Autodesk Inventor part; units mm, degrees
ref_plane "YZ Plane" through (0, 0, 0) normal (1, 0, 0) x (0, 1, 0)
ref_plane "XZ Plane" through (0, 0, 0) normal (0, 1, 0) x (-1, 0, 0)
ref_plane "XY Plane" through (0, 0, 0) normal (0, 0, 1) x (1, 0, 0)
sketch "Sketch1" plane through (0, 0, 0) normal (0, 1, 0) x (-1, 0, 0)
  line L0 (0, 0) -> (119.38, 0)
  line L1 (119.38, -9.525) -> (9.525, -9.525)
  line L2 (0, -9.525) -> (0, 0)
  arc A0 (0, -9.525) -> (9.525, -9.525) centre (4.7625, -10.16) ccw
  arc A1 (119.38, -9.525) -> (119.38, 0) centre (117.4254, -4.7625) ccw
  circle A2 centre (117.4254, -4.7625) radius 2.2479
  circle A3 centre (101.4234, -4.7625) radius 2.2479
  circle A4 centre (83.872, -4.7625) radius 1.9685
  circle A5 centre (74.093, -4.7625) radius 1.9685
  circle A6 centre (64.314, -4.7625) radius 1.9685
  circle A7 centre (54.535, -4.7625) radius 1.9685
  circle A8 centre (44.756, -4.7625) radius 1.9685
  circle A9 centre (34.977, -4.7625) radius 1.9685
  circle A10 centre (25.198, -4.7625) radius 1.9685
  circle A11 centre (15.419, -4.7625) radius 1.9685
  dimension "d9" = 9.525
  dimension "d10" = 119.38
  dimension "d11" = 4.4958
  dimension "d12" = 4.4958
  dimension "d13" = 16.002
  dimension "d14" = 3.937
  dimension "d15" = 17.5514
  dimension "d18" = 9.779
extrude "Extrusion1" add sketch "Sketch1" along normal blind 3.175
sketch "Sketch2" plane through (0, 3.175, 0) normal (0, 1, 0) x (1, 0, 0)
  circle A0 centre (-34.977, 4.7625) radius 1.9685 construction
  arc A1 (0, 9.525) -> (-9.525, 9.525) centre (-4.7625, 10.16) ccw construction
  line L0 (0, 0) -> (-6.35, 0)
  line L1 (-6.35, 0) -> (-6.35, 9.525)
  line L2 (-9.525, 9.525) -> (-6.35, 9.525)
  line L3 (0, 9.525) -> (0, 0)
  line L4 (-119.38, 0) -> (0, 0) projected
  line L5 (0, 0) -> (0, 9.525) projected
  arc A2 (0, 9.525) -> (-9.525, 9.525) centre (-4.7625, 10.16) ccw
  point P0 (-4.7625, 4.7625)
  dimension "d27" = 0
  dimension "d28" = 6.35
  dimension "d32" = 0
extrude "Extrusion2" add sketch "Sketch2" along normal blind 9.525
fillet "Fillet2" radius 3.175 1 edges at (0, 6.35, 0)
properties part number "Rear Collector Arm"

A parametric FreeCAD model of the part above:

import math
import FreeCAD as App
import Part
import Sketcher
from FreeCAD import Vector
Q = App.Units.Quantity


def edges_at(feature, points):
    """Names of the edges that pass closest to the given points."""
    edges = feature.Shape.Edges
    near = lambda p: min(range(len(edges)), key=lambda i: edges[i].distToShape(Part.Vertex(*p))[0])
    return sorted({f"Edge{near(p) + 1}" for p in points})

doc = App.newDocument("Part")
body = doc.addObject("PartDesign::Body", "Body")

# Sketch on XZ plane
sketch1 = body.newObject("Sketcher::SketchObject", "Sketch")
sketch1.AttachmentSupport = (doc.getObject("XZ_Plane"), [""])
sketch1.MapMode = "FlatFace"
sketch1.addGeometry([
    Part.LineSegment(Vector(-119.4, 0, 0), Vector(0, 0, 0)),  # 0
    Part.LineSegment(Vector(0, 0, 0), Vector(0, -9.5, 0)),  # 1
    Part.ArcOfCircle(Part.Circle(Vector(-4.8, -10.2, 0), Vector(0, 0, 1), 4.8), math.radians(172), math.radians(368)),  # 2
    Part.LineSegment(Vector(-9.5, -9.5, 0), Vector(-119.4, -9.5, 0)),  # 3
    Part.ArcOfCircle(Part.Circle(Vector(-117.4, -4.8, 0), Vector(0, 0, 1), 5.1), math.radians(112), math.radians(248)),  # 4
    Part.Circle(Vector(-15.4, -4.8, 0), Vector(0, 0, 1), 2),  # 5
    Part.Circle(Vector(-25.2, -4.8, 0), Vector(0, 0, 1), 2),  # 6
    Part.Circle(Vector(-35, -4.8, 0), Vector(0, 0, 1), 2),  # 7
    Part.Circle(Vector(-44.8, -4.8, 0), Vector(0, 0, 1), 2),  # 8
    Part.Circle(Vector(-54.5, -4.8, 0), Vector(0, 0, 1), 2),  # 9
    Part.Circle(Vector(-64.3, -4.8, 0), Vector(0, 0, 1), 2),  # 10
    Part.Circle(Vector(-74.1, -4.8, 0), Vector(0, 0, 1), 2),  # 11
    Part.Circle(Vector(-83.9, -4.8, 0), Vector(0, 0, 1), 2),  # 12
    Part.Circle(Vector(-101.4, -4.8, 0), Vector(0, 0, 1), 2.2),  # 13
    Part.Circle(Vector(-117.4, -4.8, 0), Vector(0, 0, 1), 2.2),  # 14
], False)
sketch1.addConstraint([
    Sketcher.Constraint("Coincident", 0, 2, 1, 1),
    Sketcher.Constraint("Coincident", 1, 2, 2, 2),
    Sketcher.Constraint("Coincident", 2, 1, 3, 1),
    Sketcher.Constraint("Coincident", 3, 2, 4, 2),
    Sketcher.Constraint("Coincident", 4, 1, 0, 1),
    Sketcher.Constraint("Horizontal", 0),
    Sketcher.Constraint("Vertical", 1),
    Sketcher.Constraint("Horizontal", 3),
    Sketcher.Constraint("Coincident", 0, 2, -1, 1),
    Sketcher.Constraint("Coincident", 14, 3, 4, 3),
    Sketcher.Constraint("Equal", 5, 6),
    Sketcher.Constraint("Equal", 6, 7),
    Sketcher.Constraint("Equal", 7, 8),
    Sketcher.Constraint("Equal", 8, 9),
    Sketcher.Constraint("Equal", 9, 10),
    Sketcher.Constraint("Equal", 10, 11),
    Sketcher.Constraint("Equal", 11, 12),
    Sketcher.Constraint("Equal", 13, 14),
    Sketcher.Constraint("Horizontal", 4, 3, 5, 3),
    Sketcher.Constraint("Horizontal", 5, 3, 6, 3),
    Sketcher.Constraint("Horizontal", 6, 3, 7, 3),
    Sketcher.Constraint("Horizontal", 7, 3, 8, 3),
    Sketcher.Constraint("Horizontal", 8, 3, 9, 3),
    Sketcher.Constraint("Horizontal", 9, 3, 10, 3),
    Sketcher.Constraint("Horizontal", 10, 3, 11, 3),
    Sketcher.Constraint("Horizontal", 11, 3, 12, 3),
    Sketcher.Constraint("Horizontal", 12, 3, 13, 3),
    Sketcher.Constraint("Horizontal", 1, 2, 2, 1),
    Sketcher.Constraint("Vertical", 3, 2, 4, 1),
    Sketcher.Constraint("Diameter", 5, Q("0.155 in")),
    Sketcher.Constraint("Diameter", 13, Q("0.177 in")),
    Sketcher.Constraint("DistanceX", 0, 1, 0, 2, Q("4.7 in")),
    Sketcher.Constraint("DistanceY", 1, 2, 1, 1, Q("0.375 in")),
    Sketcher.Constraint("DistanceX", 4, 3, 13, 3, Q("0.63 in")),
    Sketcher.Constraint("DistanceX", 2, 1, -1, 1, Q("0.375 in")),
    Sketcher.Constraint("DistanceX", 6, 3, 5, 3, Q("0.385 in")),
    Sketcher.Constraint("DistanceX", 7, 3, 6, 3, Q("0.385 in")),
    Sketcher.Constraint("DistanceX", 8, 3, 7, 3, Q("0.385 in")),
    Sketcher.Constraint("DistanceX", 9, 3, 8, 3, Q("0.385 in")),
    Sketcher.Constraint("DistanceX", 10, 3, 9, 3, Q("0.385 in")),
    Sketcher.Constraint("DistanceX", 11, 3, 10, 3, Q("0.385 in")),
    Sketcher.Constraint("DistanceX", 12, 3, 11, 3, Q("0.385 in")),
    Sketcher.Constraint("DistanceX", 13, 3, 12, 3, Q("0.691 in")),
    Sketcher.Constraint("DistanceY", 2, 3, -1, 1, Q("0.4 in")),
    Sketcher.Constraint("Radius", 4, Q("5.148 mm")),
])
pad1 = body.newObject("PartDesign::Pad", "Pad")
pad1.Profile = sketch1
pad1.Length = Q("0.125 in")
pad1.Reversed = True

# Sketch on XZ plane
sketch2 = body.newObject("Sketcher::SketchObject", "Sketch001")
sketch2.AttachmentSupport = (doc.getObject("XZ_Plane"), [""])
sketch2.MapMode = "FlatFace"
sketch2.AttachmentOffset = App.Placement(Vector(0, 0, -0.125 * 25.4), App.Rotation())
sketch2.addGeometry([
    Part.LineSegment(Vector(-6.3, 0, 0), Vector(0, 0, 0)),  # 0
    Part.LineSegment(Vector(0, 0, 0), Vector(0, -9.5, 0)),  # 1
    Part.ArcOfCircle(Part.Circle(Vector(-4.8, -10.2, 0), Vector(0, 0, 1), 4.8), math.radians(172), math.radians(368)),  # 2
    Part.LineSegment(Vector(-9.5, -9.5, 0), Vector(-6.3, -9.5, 0)),  # 3
    Part.LineSegment(Vector(-6.3, -9.5, 0), Vector(-6.3, 0, 0)),  # 4
], False)
sketch2.addConstraint([
    Sketcher.Constraint("Coincident", 0, 2, 1, 1),
    Sketcher.Constraint("Coincident", 1, 2, 2, 2),
    Sketcher.Constraint("Coincident", 2, 1, 3, 1),
    Sketcher.Constraint("Coincident", 3, 2, 4, 1),
    Sketcher.Constraint("Coincident", 4, 2, 0, 1),
    Sketcher.Constraint("Horizontal", 0),
    Sketcher.Constraint("Vertical", 1),
    Sketcher.Constraint("Horizontal", 3),
    Sketcher.Constraint("Vertical", 4),
    Sketcher.Constraint("Coincident", 0, 2, -1, 1),
    Sketcher.Constraint("Horizontal", 1, 2, 2, 1),
    Sketcher.Constraint("DistanceX", 0, 1, 0, 2, Q("0.25 in")),
    Sketcher.Constraint("DistanceY", 2, 3, -1, 1, Q("0.4 in")),
    Sketcher.Constraint("DistanceX", 3, 1, 3, 2, Q("0.125 in")),
    Sketcher.Constraint("DistanceY", 1, 2, 1, 1, Q("0.375 in")),
])
pad2 = body.newObject("PartDesign::Pad", "Pad001")
pad2.Profile = sketch2
pad2.Length = Q("0.375 in")
pad2.Reversed = True
doc.recompute()

fillet = body.newObject("PartDesign::Fillet", "Fillet")
fillet.Base = (pad2, edges_at(pad2, [(0, 6.35, 0)]))
fillet.Radius = Q("0.125 in")

doc.recompute()
